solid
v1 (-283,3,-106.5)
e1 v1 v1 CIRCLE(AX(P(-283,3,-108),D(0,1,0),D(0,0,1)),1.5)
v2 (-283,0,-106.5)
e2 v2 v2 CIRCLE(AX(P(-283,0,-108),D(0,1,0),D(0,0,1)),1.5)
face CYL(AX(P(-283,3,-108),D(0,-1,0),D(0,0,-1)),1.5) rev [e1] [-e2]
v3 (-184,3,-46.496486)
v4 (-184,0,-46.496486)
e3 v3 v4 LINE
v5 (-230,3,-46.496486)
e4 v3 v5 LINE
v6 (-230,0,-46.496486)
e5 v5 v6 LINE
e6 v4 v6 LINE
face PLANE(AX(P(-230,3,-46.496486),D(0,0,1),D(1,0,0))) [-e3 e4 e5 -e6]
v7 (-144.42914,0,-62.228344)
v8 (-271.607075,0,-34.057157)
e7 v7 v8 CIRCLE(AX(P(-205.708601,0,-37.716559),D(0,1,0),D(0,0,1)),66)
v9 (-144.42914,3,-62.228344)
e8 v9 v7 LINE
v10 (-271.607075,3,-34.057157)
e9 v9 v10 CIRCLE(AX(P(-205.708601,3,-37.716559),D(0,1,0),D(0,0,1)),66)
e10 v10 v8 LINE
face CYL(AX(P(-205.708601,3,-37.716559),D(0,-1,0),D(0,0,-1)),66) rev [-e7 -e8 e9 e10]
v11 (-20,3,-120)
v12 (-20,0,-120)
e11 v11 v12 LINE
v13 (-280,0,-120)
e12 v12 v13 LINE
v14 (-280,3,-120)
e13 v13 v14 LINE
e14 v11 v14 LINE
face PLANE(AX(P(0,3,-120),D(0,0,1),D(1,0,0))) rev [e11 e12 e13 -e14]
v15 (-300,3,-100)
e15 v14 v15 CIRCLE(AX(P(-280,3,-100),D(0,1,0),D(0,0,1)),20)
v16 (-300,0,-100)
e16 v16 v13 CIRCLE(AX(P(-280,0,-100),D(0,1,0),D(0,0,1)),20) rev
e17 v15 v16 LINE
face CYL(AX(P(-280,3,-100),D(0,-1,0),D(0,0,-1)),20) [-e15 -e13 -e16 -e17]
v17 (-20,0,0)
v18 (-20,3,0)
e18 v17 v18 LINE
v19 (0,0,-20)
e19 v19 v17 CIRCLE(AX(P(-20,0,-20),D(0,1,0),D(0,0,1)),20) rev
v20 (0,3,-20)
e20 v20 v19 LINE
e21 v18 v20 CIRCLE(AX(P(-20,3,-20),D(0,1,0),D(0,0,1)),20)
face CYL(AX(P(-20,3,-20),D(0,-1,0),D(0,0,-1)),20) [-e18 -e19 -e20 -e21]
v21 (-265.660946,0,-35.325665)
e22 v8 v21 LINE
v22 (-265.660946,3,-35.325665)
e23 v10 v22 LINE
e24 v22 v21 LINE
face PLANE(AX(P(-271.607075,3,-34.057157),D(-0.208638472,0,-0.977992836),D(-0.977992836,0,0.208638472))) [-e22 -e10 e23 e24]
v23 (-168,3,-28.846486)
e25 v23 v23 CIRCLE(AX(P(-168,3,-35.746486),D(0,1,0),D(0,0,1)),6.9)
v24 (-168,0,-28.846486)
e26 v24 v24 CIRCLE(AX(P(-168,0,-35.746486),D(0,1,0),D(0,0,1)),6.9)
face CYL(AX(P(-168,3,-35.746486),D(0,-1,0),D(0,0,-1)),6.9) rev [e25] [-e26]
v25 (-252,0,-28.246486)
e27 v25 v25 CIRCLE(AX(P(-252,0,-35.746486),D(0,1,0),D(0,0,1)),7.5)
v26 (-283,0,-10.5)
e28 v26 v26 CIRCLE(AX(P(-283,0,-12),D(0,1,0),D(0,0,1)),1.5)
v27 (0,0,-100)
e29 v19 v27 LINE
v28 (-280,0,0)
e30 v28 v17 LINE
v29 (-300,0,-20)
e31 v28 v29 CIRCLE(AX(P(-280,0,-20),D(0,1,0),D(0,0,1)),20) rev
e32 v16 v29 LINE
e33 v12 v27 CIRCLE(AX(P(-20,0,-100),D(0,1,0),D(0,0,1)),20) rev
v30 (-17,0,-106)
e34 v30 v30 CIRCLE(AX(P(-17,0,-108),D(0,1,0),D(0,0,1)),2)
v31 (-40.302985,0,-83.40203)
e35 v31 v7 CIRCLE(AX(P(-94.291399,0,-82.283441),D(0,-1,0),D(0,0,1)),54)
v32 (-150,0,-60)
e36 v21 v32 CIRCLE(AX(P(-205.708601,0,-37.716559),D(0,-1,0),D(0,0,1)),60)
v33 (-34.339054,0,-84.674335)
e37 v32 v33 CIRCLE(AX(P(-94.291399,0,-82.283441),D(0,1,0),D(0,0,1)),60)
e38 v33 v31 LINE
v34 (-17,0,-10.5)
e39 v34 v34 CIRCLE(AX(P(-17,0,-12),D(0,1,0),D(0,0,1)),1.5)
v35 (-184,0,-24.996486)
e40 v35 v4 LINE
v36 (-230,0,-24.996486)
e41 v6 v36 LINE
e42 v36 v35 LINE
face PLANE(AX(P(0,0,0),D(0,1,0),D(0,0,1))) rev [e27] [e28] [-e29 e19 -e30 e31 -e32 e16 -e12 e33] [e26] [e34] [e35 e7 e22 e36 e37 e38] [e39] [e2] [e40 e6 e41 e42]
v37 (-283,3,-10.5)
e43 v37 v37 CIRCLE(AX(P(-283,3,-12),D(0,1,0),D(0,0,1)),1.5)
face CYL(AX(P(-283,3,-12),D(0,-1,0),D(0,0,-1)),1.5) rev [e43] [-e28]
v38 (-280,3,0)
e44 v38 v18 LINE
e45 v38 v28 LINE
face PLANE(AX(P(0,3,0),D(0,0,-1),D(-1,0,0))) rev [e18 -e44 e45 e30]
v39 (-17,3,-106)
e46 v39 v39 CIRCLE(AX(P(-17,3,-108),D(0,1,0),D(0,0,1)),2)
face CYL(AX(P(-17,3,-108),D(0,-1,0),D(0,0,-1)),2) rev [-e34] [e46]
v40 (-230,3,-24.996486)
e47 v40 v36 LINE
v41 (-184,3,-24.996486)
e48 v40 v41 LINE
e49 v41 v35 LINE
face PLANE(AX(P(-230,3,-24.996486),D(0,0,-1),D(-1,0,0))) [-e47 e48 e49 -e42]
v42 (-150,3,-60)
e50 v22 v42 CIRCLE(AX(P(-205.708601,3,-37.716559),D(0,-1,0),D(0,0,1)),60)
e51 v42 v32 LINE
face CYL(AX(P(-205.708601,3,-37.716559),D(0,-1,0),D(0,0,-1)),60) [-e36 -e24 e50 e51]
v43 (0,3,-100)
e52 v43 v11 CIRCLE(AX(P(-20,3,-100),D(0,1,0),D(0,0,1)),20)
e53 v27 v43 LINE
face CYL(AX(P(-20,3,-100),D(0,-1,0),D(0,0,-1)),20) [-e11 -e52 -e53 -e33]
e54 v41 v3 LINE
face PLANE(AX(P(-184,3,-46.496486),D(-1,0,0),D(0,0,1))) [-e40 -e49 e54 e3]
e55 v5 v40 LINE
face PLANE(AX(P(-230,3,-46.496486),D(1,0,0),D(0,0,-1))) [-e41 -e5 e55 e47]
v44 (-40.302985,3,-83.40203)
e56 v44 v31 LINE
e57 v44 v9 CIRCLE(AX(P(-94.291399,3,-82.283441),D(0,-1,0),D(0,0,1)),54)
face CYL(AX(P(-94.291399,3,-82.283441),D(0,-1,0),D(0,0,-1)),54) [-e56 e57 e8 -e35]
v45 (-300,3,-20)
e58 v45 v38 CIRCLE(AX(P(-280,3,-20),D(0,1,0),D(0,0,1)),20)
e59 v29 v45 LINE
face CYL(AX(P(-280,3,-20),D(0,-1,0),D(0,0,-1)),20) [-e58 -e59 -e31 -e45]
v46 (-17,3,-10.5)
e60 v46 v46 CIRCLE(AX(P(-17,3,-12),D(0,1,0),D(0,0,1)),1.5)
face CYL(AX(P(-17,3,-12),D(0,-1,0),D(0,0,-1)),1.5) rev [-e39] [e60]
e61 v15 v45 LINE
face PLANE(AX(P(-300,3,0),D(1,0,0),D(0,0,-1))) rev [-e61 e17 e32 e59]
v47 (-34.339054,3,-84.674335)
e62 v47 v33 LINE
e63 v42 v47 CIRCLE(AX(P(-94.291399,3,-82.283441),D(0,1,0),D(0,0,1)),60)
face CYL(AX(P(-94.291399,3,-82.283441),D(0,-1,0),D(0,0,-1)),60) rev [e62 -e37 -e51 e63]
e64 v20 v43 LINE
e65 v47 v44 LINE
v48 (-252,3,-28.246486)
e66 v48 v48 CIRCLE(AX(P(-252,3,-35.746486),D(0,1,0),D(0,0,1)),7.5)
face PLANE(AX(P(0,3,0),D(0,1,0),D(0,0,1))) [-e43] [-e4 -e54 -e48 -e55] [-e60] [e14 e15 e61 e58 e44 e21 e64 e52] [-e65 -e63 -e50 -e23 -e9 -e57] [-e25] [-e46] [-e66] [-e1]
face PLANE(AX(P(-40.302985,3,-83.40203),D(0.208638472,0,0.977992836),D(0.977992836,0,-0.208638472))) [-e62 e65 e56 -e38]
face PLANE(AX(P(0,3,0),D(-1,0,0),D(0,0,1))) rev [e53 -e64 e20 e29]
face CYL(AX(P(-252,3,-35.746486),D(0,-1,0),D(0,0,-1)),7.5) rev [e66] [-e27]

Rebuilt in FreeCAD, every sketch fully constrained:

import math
import FreeCAD as App
import Part
import Sketcher

V = App.Vector
Q = App.Units.Quantity


def edges_at(feature, points):
    """Names of the edges that pass closest to the given points."""
    edges = feature.Shape.Edges
    near = lambda p: min(range(len(edges)), key=lambda i: edges[i].distToShape(Part.Vertex(*p))[0])
    return sorted({f"Edge{near(p) + 1}" for p in points})

doc = App.newDocument("Part")
params = doc.addObject("Spreadsheet::Sheet", "Params")
for row, (alias, value) in enumerate([
    ("sketch1_diameter", "3 mm"),
    ("sketch1_diameter2", "15 mm"),
    ("sketch1_diameter3", "4 mm"),
    ("sketch1_radius", "66 mm"),
    ("sketch1_radius2", "54 mm"),
    ("pad1_length", "3 mm"),
    ("fillet_radius", "20 mm"),
], start=1):
    params.set(f"A{row}", alias)
    params.set(f"B{row}", "=" + value)
    params.setAlias(f"B{row}", alias)

body = doc.addObject("PartDesign::Body", "Body")

# Sketch on XZ plane
sketch1 = body.newObject("Sketcher::SketchObject", "Sketch")
sketch1.AttachmentSupport = (doc.getObject("XZ_Plane"), [""])
sketch1.MapMode = "FlatFace"
sketch1.addGeometry([
    Part.LineSegment(V(-300, -120, 0), V(-300, 0, 0)),  # 0
    Part.LineSegment(V(-300, 0, 0), V(0, 0, 0)),  # 1
    Part.LineSegment(V(0, 0, 0), V(0, -120, 0)),  # 2
    Part.LineSegment(V(0, -120, 0), V(-300, -120, 0)),  # 3
    Part.Circle(V(-283, -12, 0), V(0, 0, 1), 1.5),  # 4
    Part.Circle(V(-252, -35.746486, 0), V(0, 0, 1), 7.5),  # 5
    Part.LineSegment(V(-184, -24.996486, 0), V(-230, -24.996486, 0)),  # 6
    Part.LineSegment(V(-230, -24.996486, 0), V(-230, -46.496486, 0)),  # 7
    Part.LineSegment(V(-230, -46.496486, 0), V(-184, -46.496486, 0)),  # 8
    Part.LineSegment(V(-184, -46.496486, 0), V(-184, -24.996486, 0)),  # 9
    Part.Circle(V(-168, -35.746486, 0), V(0, 0, 1), 6.9),  # 10
    Part.Circle(V(-17, -12, 0), V(0, 0, 1), 1.5),  # 11
    Part.LineSegment(V(-265.660946, -35.325665, 0), V(-271.607075, -34.057157, 0)),  # 12
    Part.ArcOfCircle(Part.Circle(V(-205.708601, -37.716559, 0), V(0, 0, 1), 66), math.radians(176.821578), math.radians(338.198591)),  # 13
    Part.ArcOfCircle(Part.Circle(V(-94.291399, -82.283441, 0), V(0, 0, 1), 54), math.radians(-1.186945), math.radians(158.198591)),  # 14
    Part.LineSegment(V(-40.302985, -83.40203, 0), V(-34.339054, -84.674335, 0)),  # 15
    Part.ArcOfCircle(Part.Circle(V(-94.291399, -82.283441, 0), V(0, 0, 1), 60), math.radians(-2.283741), math.radians(158.198591)),  # 16
    Part.ArcOfCircle(Part.Circle(V(-205.708601, -37.716559, 0), V(0, 0, 1), 60), math.radians(177.716259), math.radians(338.198591)),  # 17
    Part.Circle(V(-283, -108, 0), V(0, 0, 1), 1.5),  # 18
    Part.Circle(V(-17, -108, 0), V(0, 0, 1), 2),  # 19
], False)
sketch1.addConstraint([
    Sketcher.Constraint("Coincident", 0, 2, 1, 1),
    Sketcher.Constraint("Coincident", 1, 2, 2, 1),
    Sketcher.Constraint("Coincident", 2, 2, 3, 1),
    Sketcher.Constraint("Coincident", 3, 2, 0, 1),
    Sketcher.Constraint("Coincident", 6, 2, 7, 1),
    Sketcher.Constraint("Coincident", 7, 2, 8, 1),
    Sketcher.Constraint("Coincident", 8, 2, 9, 1),
    Sketcher.Constraint("Coincident", 9, 2, 6, 1),
    Sketcher.Constraint("Coincident", 12, 2, 13, 1),
    Sketcher.Constraint("Tangent", 13, 2, 14, 2),
    Sketcher.Constraint("Coincident", 14, 1, 15, 1),
    Sketcher.Constraint("Coincident", 15, 2, 16, 1),
    Sketcher.Constraint("Tangent", 16, 2, 17, 2),
    Sketcher.Constraint("Coincident", 17, 1, 12, 1),
    Sketcher.Constraint("Vertical", 0),
    Sketcher.Constraint("Horizontal", 1),
    Sketcher.Constraint("Vertical", 2),
    Sketcher.Constraint("Horizontal", 3),
    Sketcher.Constraint("Horizontal", 6),
    Sketcher.Constraint("Vertical", 7),
    Sketcher.Constraint("Horizontal", 8),
    Sketcher.Constraint("Vertical", 9),
    Sketcher.Constraint("Coincident", 1, 2, -1, 1),
    Sketcher.Constraint("Coincident", 16, 3, 14, 3),
    Sketcher.Constraint("Coincident", 17, 3, 13, 3),
    Sketcher.Constraint("Equal", 4, 11),
    Sketcher.Constraint("Equal", 16, 17),
    Sketcher.Constraint("Equal", 11, 18),
    Sketcher.Constraint("Parallel", 12, 15),
    Sketcher.Constraint("Horizontal", 5, 3, 10, 3),
    Sketcher.Constraint("Horizontal", 4, 3, 11, 3),
    Sketcher.Constraint("Horizontal", 18, 3, 19, 3),
    Sketcher.Constraint("Vertical", 4, 3, 18, 3),
    Sketcher.Constraint("Vertical", 11, 3, 19, 3),
    Sketcher.Constraint("Diameter", 4, Q("3 mm")),
    Sketcher.Constraint("Diameter", 5, Q("15 mm")),
    Sketcher.Constraint("Diameter", 19, Q("4 mm")),
    Sketcher.Constraint("Radius", 13, Q("66 mm")),
    Sketcher.Constraint("Radius", 14, Q("54 mm")),
    Sketcher.Constraint("Diameter", 10, Q("13.8 mm")),
    Sketcher.Constraint("DistanceX", 1, 1, 1, 2, Q("300 mm")),
    Sketcher.Constraint("DistanceX", 6, 2, 6, 1, Q("46 mm")),
    Sketcher.Constraint("DistanceY", 0, 1, 0, 2, Q("120 mm")),
    Sketcher.Constraint("DistanceY", 7, 2, 7, 1, Q("21.5 mm")),
    Sketcher.Constraint("DistanceX", 4, 3, -1, 1, Q("283 mm")),
    Sketcher.Constraint("DistanceY", 4, 3, -1, 1, Q("12 mm")),
    Sketcher.Constraint("DistanceX", 5, 3, -1, 1, Q("252 mm")),
    Sketcher.Constraint("DistanceX", 10, 3, -1, 1, Q("168 mm")),
    Sketcher.Constraint("DistanceX", 11, 3, -1, 1, Q("17 mm")),
    Sketcher.Constraint("DistanceY", 18, 3, -1, 1, Q("108 mm")),
    Sketcher.Constraint("DistanceX", 6, 2, -1, 1, Q("230 mm")),
    Sketcher.Constraint("DistanceX", 16, 2, -1, 1, Q("150 mm")),
    Sketcher.Constraint("DistanceY", 16, 2, -1, 1, Q("60 mm")),
    Sketcher.Constraint("DistanceY", 5, 3, 6, 2, Q("10.75 mm")),
    Sketcher.Constraint("DistanceX", 13, 3, -1, 1, Q("205.708601 mm")),
    Sketcher.Constraint("Distance", 12, Q("6.079931 mm")),
    Sketcher.Constraint("DistanceY", 14, 1, -1, 1, Q("83.40203 mm")),
    Sketcher.Constraint("DistanceY", 5, 3, 12, 2, Q("1.689328 mm")),
    Sketcher.Constraint("DistanceY", 13, 2, 10, 3, Q("26.481858 mm")),
])
sketch1.setExpression("Constraints[34]", "Params.sketch1_diameter")
sketch1.setExpression("Constraints[35]", "Params.sketch1_diameter2")
sketch1.setExpression("Constraints[36]", "Params.sketch1_diameter3")
sketch1.setExpression("Constraints[37]", "Params.sketch1_radius")
sketch1.setExpression("Constraints[38]", "Params.sketch1_radius2")
pad1 = body.newObject("PartDesign::Pad", "Pad")
pad1.Profile = sketch1
pad1.setExpression("Length", "Params.pad1_length")
pad1.Reversed = True
doc.recompute()

fillet = body.newObject("PartDesign::Fillet", "Fillet")
fillet.Base = (pad1, edges_at(pad1, [
    (0, 1.5, 0),
    (-300, 1.5, 0),
    (-300, 1.5, -120),
    (0, 1.5, -120),
]))
fillet.setExpression("Radius", "Params.fillet_radius")

doc.recompute()
